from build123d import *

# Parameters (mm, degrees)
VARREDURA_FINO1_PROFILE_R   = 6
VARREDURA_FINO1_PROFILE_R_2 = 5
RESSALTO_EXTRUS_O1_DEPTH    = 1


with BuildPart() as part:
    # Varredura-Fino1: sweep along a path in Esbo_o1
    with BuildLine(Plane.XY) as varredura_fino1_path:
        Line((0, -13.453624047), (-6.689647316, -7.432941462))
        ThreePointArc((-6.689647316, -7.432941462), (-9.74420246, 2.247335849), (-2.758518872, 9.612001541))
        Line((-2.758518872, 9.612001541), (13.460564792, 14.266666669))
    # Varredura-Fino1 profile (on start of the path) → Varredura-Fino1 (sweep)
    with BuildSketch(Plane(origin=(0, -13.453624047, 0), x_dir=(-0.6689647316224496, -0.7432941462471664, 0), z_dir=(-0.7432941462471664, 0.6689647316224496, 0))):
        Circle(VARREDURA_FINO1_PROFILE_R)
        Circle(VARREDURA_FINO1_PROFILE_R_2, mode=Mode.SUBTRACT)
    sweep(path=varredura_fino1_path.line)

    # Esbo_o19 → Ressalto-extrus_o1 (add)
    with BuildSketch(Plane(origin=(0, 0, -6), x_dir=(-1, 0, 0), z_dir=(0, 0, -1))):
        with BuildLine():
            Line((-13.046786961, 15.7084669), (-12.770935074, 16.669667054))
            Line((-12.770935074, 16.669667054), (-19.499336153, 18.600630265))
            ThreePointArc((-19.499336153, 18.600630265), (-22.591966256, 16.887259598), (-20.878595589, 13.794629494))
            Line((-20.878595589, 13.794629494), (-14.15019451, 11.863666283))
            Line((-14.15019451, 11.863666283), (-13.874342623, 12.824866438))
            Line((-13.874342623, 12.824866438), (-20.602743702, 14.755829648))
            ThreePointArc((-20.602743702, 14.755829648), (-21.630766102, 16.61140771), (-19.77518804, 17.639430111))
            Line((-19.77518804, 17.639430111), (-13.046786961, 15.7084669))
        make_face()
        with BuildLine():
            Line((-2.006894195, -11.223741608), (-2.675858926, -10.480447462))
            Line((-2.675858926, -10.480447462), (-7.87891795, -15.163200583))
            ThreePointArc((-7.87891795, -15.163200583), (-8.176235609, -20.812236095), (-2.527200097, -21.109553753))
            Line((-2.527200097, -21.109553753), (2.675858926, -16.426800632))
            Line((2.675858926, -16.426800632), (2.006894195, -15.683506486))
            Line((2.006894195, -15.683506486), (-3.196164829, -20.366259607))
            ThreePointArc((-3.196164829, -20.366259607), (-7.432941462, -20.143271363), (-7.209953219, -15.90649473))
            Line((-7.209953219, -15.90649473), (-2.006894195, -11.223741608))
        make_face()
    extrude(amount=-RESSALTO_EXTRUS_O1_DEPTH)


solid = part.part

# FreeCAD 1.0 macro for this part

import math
import FreeCAD as App
import Part
import Sketcher

V = App.Vector

doc = App.newDocument("Part")
body = doc.addObject("PartDesign::Body", "Body")

# Sketch on an angled plane
sketch1 = body.newObject("Sketcher::SketchObject", "Sketch")
sketch1.Placement = App.Placement(V(0, -13.453624, 0), App.Rotation(V(-0.668964732, -0.743294146, 0), V(0, 0, 1), V(-0.743294146, 0.668964732, 0), "ZXY"))
sketch1.addGeometry(Part.Circle(V(0, 0, 0), V(0, 0, 1), 6), False)
sketch1.addGeometry(Part.Circle(V(0, 0, 0), V(0, 0, 1), 5), False)
sketch1.addConstraint(Sketcher.Constraint("Coincident", 0, 3, -1, 1))
sketch1.addConstraint(Sketcher.Constraint("Coincident", 1, 3, -1, 1))
sketch1.addConstraint(Sketcher.Constraint("Diameter", 0, 12.0))
sketch1.addConstraint(Sketcher.Constraint("Diameter", 1, 10.0))

# Sketch on XY plane
sketch2 = body.newObject("Sketcher::SketchObject", "Sketch001")
sketch2.AttachmentSupport = (doc.getObject("XY_Plane"), [""])
sketch2.MapMode = "FlatFace"
sketch2.addGeometry(Part.LineSegment(V(0, -13, 0), V(-7, -7, 0)), False)
sketch2.addGeometry(Part.ArcOfCircle(Part.Circle(V(0, 0, 0), V(0, 0, 1), 10), math.radians(106), math.radians(228)), False)
sketch2.addGeometry(Part.LineSegment(V(-3, 10, 0), V(13, 14, 0)), False)
sketch2.addConstraint(Sketcher.Constraint("Tangent", 0, 2, 1, 2))
sketch2.addConstraint(Sketcher.Constraint("Tangent", 1, 1, 2, 1))
sketch2.addConstraint(Sketcher.Constraint("Coincident", 1, 3, -1, 1))
sketch2.addConstraint(Sketcher.Constraint("PointOnObject", 0, 1, -2))
sketch2.addConstraint(Sketcher.Constraint("Radius", 1, 10.0))
sketch2.addConstraint(Sketcher.Constraint("Distance", 0, 9.0))
sketch2.addConstraint(Sketcher.Constraint("DistanceY", -1, 1, 1, 1, 9.612002))
sketch2.addConstraint(Sketcher.Constraint("DistanceY", 0, 2, 2, 2, 21.699608))
doc.recompute()

additivepipe = body.newObject("PartDesign::AdditivePipe", "AdditivePipe")
additivepipe.Profile = sketch1
additivepipe.Spine = (sketch2, ["Edge1", "Edge2", "Edge3"])

# Sketch on XY plane
sketch3 = body.newObject("Sketcher::SketchObject", "Sketch002")
sketch3.AttachmentSupport = (doc.getObject("XY_Plane"), [""])
sketch3.MapMode = "FlatFace"
sketch3.AttachmentOffset = App.Placement(V(0, 0, -6), App.Rotation())
sketch3.addGeometry(Part.LineSegment(V(13, 15.7, 0), V(12.8, 16.7, 0)), False)
sketch3.addGeometry(Part.LineSegment(V(12.8, 16.7, 0), V(19.5, 18.6, 0)), False)
sketch3.addGeometry(Part.ArcOfCircle(Part.Circle(V(20.2, 16.2, 0), V(0, 0, 1), 2.5), math.radians(-74), math.radians(106)), False)
sketch3.addGeometry(Part.LineSegment(V(20.9, 13.8, 0), V(14.2, 11.9, 0)), False)
sketch3.addGeometry(Part.LineSegment(V(14.2, 11.9, 0), V(13.9, 12.8, 0)), False)
sketch3.addGeometry(Part.LineSegment(V(13.9, 12.8, 0), V(20.6, 14.8, 0)), False)
sketch3.addGeometry(Part.ArcOfCircle(Part.Circle(V(20.2, 16.2, 0), V(0, 0, 1), 1.5), math.radians(-74), math.radians(106)), False)
sketch3.addGeometry(Part.LineSegment(V(19.8, 17.6, 0), V(13, 15.7, 0)), False)
sketch3.addGeometry(Part.LineSegment(V(2, -11.2, 0), V(2.7, -10.5, 0)), False)
sketch3.addGeometry(Part.LineSegment(V(2.7, -10.5, 0), V(7.9, -15.2, 0)), False)
sketch3.addGeometry(Part.ArcOfCircle(Part.Circle(V(5.2, -18.1, 0), V(0, 0, 1), 4), math.radians(-132), math.radians(48)), False)
sketch3.addGeometry(Part.LineSegment(V(2.5, -21.1, 0), V(-2.7, -16.4, 0)), False)
sketch3.addGeometry(Part.LineSegment(V(-2.7, -16.4, 0), V(-2, -15.7, 0)), False)
sketch3.addGeometry(Part.LineSegment(V(-2, -15.7, 0), V(3.2, -20.4, 0)), False)
sketch3.addGeometry(Part.ArcOfCircle(Part.Circle(V(5.2, -18.1, 0), V(0, 0, 1), 3), math.radians(-132), math.radians(48)), False)
sketch3.addGeometry(Part.LineSegment(V(7.2, -15.9, 0), V(2, -11.2, 0)), False)
sketch3.addConstraint(Sketcher.Constraint("Coincident", 0, 2, 1, 1))
sketch3.addConstraint(Sketcher.Constraint("Tangent", 1, 2, 2, 2))
sketch3.addConstraint(Sketcher.Constraint("Tangent", 2, 1, 3, 1))
sketch3.addConstraint(Sketcher.Constraint("Coincident", 3, 2, 4, 1))
sketch3.addConstraint(Sketcher.Constraint("Coincident", 4, 2, 5, 1))
sketch3.addConstraint(Sketcher.Constraint("Tangent", 5, 2, 6, 1))
sketch3.addConstraint(Sketcher.Constraint("Tangent", 6, 2, 7, 1))
sketch3.addConstraint(Sketcher.Constraint("Coincident", 7, 2, 0, 1))
sketch3.addConstraint(Sketcher.Constraint("Coincident", 8, 2, 9, 1))
sketch3.addConstraint(Sketcher.Constraint("Tangent", 9, 2, 10, 2))
sketch3.addConstraint(Sketcher.Constraint("Tangent", 10, 1, 11, 1))
sketch3.addConstraint(Sketcher.Constraint("Coincident", 11, 2, 12, 1))
sketch3.addConstraint(Sketcher.Constraint("Coincident", 12, 2, 13, 1))
sketch3.addConstraint(Sketcher.Constraint("Tangent", 13, 2, 14, 1))
sketch3.addConstraint(Sketcher.Constraint("Tangent", 14, 2, 15, 1))
sketch3.addConstraint(Sketcher.Constraint("Coincident", 15, 2, 8, 1))
sketch3.addConstraint(Sketcher.Constraint("Coincident", 6, 3, 2, 3))
sketch3.addConstraint(Sketcher.Constraint("Coincident", 14, 3, 10, 3))
sketch3.addConstraint(Sketcher.Constraint("Perpendicular", 0, 1))
sketch3.addConstraint(Sketcher.Constraint("Parallel", 1, 3))
sketch3.addConstraint(Sketcher.Constraint("Perpendicular", 3, 4))
sketch3.addConstraint(Sketcher.Constraint("Perpendicular", 4, 5))
sketch3.addConstraint(Sketcher.Constraint("Parallel", 5, 7))
sketch3.addConstraint(Sketcher.Constraint("Perpendicular", 8, 9))
sketch3.addConstraint(Sketcher.Constraint("Parallel", 9, 11))
sketch3.addConstraint(Sketcher.Constraint("Perpendicular", 11, 12))
sketch3.addConstraint(Sketcher.Constraint("Perpendicular", 12, 13))
sketch3.addConstraint(Sketcher.Constraint("Parallel", 13, 15))
sketch3.addConstraint(Sketcher.Constraint("Equal", 1, 3))
sketch3.addConstraint(Sketcher.Constraint("Equal", 4, 8))
sketch3.addConstraint(Sketcher.Constraint("Equal", 7, 9))
sketch3.addConstraint(Sketcher.Constraint("Equal", 9, 11))
sketch3.addConstraint(Sketcher.Constraint("Radius", 10, 4.0))
sketch3.addConstraint(Sketcher.Constraint("Radius", 14, 3.0))
sketch3.addConstraint(Sketcher.Constraint("Radius", 2, 2.5))
sketch3.addConstraint(Sketcher.Constraint("Distance", 1, 7.0))
sketch3.addConstraint(Sketcher.Constraint("DistanceY", 6, 3, 1, 2, 2.403))
sketch3.addConstraint(Sketcher.Constraint("DistanceY", 9, 2, -1, 1, 15.163201))
sketch3.addConstraint(Sketcher.Constraint("DistanceX", -1, 1, 10, 1, 2.5272))
sketch3.addConstraint(Sketcher.Constraint("DistanceY", 11, 2, -1, 1, 16.426801))
sketch3.addConstraint(Sketcher.Constraint("DistanceY", -1, 1, 2, 3, 16.19763))
sketch3.addConstraint(Sketcher.Constraint("DistanceX", -1, 1, 6, 2, 19.775188))
pad1 = body.newObject("PartDesign::Pad", "Pad")
pad1.Profile = sketch3
pad1.Length = 1

doc.recompute()
